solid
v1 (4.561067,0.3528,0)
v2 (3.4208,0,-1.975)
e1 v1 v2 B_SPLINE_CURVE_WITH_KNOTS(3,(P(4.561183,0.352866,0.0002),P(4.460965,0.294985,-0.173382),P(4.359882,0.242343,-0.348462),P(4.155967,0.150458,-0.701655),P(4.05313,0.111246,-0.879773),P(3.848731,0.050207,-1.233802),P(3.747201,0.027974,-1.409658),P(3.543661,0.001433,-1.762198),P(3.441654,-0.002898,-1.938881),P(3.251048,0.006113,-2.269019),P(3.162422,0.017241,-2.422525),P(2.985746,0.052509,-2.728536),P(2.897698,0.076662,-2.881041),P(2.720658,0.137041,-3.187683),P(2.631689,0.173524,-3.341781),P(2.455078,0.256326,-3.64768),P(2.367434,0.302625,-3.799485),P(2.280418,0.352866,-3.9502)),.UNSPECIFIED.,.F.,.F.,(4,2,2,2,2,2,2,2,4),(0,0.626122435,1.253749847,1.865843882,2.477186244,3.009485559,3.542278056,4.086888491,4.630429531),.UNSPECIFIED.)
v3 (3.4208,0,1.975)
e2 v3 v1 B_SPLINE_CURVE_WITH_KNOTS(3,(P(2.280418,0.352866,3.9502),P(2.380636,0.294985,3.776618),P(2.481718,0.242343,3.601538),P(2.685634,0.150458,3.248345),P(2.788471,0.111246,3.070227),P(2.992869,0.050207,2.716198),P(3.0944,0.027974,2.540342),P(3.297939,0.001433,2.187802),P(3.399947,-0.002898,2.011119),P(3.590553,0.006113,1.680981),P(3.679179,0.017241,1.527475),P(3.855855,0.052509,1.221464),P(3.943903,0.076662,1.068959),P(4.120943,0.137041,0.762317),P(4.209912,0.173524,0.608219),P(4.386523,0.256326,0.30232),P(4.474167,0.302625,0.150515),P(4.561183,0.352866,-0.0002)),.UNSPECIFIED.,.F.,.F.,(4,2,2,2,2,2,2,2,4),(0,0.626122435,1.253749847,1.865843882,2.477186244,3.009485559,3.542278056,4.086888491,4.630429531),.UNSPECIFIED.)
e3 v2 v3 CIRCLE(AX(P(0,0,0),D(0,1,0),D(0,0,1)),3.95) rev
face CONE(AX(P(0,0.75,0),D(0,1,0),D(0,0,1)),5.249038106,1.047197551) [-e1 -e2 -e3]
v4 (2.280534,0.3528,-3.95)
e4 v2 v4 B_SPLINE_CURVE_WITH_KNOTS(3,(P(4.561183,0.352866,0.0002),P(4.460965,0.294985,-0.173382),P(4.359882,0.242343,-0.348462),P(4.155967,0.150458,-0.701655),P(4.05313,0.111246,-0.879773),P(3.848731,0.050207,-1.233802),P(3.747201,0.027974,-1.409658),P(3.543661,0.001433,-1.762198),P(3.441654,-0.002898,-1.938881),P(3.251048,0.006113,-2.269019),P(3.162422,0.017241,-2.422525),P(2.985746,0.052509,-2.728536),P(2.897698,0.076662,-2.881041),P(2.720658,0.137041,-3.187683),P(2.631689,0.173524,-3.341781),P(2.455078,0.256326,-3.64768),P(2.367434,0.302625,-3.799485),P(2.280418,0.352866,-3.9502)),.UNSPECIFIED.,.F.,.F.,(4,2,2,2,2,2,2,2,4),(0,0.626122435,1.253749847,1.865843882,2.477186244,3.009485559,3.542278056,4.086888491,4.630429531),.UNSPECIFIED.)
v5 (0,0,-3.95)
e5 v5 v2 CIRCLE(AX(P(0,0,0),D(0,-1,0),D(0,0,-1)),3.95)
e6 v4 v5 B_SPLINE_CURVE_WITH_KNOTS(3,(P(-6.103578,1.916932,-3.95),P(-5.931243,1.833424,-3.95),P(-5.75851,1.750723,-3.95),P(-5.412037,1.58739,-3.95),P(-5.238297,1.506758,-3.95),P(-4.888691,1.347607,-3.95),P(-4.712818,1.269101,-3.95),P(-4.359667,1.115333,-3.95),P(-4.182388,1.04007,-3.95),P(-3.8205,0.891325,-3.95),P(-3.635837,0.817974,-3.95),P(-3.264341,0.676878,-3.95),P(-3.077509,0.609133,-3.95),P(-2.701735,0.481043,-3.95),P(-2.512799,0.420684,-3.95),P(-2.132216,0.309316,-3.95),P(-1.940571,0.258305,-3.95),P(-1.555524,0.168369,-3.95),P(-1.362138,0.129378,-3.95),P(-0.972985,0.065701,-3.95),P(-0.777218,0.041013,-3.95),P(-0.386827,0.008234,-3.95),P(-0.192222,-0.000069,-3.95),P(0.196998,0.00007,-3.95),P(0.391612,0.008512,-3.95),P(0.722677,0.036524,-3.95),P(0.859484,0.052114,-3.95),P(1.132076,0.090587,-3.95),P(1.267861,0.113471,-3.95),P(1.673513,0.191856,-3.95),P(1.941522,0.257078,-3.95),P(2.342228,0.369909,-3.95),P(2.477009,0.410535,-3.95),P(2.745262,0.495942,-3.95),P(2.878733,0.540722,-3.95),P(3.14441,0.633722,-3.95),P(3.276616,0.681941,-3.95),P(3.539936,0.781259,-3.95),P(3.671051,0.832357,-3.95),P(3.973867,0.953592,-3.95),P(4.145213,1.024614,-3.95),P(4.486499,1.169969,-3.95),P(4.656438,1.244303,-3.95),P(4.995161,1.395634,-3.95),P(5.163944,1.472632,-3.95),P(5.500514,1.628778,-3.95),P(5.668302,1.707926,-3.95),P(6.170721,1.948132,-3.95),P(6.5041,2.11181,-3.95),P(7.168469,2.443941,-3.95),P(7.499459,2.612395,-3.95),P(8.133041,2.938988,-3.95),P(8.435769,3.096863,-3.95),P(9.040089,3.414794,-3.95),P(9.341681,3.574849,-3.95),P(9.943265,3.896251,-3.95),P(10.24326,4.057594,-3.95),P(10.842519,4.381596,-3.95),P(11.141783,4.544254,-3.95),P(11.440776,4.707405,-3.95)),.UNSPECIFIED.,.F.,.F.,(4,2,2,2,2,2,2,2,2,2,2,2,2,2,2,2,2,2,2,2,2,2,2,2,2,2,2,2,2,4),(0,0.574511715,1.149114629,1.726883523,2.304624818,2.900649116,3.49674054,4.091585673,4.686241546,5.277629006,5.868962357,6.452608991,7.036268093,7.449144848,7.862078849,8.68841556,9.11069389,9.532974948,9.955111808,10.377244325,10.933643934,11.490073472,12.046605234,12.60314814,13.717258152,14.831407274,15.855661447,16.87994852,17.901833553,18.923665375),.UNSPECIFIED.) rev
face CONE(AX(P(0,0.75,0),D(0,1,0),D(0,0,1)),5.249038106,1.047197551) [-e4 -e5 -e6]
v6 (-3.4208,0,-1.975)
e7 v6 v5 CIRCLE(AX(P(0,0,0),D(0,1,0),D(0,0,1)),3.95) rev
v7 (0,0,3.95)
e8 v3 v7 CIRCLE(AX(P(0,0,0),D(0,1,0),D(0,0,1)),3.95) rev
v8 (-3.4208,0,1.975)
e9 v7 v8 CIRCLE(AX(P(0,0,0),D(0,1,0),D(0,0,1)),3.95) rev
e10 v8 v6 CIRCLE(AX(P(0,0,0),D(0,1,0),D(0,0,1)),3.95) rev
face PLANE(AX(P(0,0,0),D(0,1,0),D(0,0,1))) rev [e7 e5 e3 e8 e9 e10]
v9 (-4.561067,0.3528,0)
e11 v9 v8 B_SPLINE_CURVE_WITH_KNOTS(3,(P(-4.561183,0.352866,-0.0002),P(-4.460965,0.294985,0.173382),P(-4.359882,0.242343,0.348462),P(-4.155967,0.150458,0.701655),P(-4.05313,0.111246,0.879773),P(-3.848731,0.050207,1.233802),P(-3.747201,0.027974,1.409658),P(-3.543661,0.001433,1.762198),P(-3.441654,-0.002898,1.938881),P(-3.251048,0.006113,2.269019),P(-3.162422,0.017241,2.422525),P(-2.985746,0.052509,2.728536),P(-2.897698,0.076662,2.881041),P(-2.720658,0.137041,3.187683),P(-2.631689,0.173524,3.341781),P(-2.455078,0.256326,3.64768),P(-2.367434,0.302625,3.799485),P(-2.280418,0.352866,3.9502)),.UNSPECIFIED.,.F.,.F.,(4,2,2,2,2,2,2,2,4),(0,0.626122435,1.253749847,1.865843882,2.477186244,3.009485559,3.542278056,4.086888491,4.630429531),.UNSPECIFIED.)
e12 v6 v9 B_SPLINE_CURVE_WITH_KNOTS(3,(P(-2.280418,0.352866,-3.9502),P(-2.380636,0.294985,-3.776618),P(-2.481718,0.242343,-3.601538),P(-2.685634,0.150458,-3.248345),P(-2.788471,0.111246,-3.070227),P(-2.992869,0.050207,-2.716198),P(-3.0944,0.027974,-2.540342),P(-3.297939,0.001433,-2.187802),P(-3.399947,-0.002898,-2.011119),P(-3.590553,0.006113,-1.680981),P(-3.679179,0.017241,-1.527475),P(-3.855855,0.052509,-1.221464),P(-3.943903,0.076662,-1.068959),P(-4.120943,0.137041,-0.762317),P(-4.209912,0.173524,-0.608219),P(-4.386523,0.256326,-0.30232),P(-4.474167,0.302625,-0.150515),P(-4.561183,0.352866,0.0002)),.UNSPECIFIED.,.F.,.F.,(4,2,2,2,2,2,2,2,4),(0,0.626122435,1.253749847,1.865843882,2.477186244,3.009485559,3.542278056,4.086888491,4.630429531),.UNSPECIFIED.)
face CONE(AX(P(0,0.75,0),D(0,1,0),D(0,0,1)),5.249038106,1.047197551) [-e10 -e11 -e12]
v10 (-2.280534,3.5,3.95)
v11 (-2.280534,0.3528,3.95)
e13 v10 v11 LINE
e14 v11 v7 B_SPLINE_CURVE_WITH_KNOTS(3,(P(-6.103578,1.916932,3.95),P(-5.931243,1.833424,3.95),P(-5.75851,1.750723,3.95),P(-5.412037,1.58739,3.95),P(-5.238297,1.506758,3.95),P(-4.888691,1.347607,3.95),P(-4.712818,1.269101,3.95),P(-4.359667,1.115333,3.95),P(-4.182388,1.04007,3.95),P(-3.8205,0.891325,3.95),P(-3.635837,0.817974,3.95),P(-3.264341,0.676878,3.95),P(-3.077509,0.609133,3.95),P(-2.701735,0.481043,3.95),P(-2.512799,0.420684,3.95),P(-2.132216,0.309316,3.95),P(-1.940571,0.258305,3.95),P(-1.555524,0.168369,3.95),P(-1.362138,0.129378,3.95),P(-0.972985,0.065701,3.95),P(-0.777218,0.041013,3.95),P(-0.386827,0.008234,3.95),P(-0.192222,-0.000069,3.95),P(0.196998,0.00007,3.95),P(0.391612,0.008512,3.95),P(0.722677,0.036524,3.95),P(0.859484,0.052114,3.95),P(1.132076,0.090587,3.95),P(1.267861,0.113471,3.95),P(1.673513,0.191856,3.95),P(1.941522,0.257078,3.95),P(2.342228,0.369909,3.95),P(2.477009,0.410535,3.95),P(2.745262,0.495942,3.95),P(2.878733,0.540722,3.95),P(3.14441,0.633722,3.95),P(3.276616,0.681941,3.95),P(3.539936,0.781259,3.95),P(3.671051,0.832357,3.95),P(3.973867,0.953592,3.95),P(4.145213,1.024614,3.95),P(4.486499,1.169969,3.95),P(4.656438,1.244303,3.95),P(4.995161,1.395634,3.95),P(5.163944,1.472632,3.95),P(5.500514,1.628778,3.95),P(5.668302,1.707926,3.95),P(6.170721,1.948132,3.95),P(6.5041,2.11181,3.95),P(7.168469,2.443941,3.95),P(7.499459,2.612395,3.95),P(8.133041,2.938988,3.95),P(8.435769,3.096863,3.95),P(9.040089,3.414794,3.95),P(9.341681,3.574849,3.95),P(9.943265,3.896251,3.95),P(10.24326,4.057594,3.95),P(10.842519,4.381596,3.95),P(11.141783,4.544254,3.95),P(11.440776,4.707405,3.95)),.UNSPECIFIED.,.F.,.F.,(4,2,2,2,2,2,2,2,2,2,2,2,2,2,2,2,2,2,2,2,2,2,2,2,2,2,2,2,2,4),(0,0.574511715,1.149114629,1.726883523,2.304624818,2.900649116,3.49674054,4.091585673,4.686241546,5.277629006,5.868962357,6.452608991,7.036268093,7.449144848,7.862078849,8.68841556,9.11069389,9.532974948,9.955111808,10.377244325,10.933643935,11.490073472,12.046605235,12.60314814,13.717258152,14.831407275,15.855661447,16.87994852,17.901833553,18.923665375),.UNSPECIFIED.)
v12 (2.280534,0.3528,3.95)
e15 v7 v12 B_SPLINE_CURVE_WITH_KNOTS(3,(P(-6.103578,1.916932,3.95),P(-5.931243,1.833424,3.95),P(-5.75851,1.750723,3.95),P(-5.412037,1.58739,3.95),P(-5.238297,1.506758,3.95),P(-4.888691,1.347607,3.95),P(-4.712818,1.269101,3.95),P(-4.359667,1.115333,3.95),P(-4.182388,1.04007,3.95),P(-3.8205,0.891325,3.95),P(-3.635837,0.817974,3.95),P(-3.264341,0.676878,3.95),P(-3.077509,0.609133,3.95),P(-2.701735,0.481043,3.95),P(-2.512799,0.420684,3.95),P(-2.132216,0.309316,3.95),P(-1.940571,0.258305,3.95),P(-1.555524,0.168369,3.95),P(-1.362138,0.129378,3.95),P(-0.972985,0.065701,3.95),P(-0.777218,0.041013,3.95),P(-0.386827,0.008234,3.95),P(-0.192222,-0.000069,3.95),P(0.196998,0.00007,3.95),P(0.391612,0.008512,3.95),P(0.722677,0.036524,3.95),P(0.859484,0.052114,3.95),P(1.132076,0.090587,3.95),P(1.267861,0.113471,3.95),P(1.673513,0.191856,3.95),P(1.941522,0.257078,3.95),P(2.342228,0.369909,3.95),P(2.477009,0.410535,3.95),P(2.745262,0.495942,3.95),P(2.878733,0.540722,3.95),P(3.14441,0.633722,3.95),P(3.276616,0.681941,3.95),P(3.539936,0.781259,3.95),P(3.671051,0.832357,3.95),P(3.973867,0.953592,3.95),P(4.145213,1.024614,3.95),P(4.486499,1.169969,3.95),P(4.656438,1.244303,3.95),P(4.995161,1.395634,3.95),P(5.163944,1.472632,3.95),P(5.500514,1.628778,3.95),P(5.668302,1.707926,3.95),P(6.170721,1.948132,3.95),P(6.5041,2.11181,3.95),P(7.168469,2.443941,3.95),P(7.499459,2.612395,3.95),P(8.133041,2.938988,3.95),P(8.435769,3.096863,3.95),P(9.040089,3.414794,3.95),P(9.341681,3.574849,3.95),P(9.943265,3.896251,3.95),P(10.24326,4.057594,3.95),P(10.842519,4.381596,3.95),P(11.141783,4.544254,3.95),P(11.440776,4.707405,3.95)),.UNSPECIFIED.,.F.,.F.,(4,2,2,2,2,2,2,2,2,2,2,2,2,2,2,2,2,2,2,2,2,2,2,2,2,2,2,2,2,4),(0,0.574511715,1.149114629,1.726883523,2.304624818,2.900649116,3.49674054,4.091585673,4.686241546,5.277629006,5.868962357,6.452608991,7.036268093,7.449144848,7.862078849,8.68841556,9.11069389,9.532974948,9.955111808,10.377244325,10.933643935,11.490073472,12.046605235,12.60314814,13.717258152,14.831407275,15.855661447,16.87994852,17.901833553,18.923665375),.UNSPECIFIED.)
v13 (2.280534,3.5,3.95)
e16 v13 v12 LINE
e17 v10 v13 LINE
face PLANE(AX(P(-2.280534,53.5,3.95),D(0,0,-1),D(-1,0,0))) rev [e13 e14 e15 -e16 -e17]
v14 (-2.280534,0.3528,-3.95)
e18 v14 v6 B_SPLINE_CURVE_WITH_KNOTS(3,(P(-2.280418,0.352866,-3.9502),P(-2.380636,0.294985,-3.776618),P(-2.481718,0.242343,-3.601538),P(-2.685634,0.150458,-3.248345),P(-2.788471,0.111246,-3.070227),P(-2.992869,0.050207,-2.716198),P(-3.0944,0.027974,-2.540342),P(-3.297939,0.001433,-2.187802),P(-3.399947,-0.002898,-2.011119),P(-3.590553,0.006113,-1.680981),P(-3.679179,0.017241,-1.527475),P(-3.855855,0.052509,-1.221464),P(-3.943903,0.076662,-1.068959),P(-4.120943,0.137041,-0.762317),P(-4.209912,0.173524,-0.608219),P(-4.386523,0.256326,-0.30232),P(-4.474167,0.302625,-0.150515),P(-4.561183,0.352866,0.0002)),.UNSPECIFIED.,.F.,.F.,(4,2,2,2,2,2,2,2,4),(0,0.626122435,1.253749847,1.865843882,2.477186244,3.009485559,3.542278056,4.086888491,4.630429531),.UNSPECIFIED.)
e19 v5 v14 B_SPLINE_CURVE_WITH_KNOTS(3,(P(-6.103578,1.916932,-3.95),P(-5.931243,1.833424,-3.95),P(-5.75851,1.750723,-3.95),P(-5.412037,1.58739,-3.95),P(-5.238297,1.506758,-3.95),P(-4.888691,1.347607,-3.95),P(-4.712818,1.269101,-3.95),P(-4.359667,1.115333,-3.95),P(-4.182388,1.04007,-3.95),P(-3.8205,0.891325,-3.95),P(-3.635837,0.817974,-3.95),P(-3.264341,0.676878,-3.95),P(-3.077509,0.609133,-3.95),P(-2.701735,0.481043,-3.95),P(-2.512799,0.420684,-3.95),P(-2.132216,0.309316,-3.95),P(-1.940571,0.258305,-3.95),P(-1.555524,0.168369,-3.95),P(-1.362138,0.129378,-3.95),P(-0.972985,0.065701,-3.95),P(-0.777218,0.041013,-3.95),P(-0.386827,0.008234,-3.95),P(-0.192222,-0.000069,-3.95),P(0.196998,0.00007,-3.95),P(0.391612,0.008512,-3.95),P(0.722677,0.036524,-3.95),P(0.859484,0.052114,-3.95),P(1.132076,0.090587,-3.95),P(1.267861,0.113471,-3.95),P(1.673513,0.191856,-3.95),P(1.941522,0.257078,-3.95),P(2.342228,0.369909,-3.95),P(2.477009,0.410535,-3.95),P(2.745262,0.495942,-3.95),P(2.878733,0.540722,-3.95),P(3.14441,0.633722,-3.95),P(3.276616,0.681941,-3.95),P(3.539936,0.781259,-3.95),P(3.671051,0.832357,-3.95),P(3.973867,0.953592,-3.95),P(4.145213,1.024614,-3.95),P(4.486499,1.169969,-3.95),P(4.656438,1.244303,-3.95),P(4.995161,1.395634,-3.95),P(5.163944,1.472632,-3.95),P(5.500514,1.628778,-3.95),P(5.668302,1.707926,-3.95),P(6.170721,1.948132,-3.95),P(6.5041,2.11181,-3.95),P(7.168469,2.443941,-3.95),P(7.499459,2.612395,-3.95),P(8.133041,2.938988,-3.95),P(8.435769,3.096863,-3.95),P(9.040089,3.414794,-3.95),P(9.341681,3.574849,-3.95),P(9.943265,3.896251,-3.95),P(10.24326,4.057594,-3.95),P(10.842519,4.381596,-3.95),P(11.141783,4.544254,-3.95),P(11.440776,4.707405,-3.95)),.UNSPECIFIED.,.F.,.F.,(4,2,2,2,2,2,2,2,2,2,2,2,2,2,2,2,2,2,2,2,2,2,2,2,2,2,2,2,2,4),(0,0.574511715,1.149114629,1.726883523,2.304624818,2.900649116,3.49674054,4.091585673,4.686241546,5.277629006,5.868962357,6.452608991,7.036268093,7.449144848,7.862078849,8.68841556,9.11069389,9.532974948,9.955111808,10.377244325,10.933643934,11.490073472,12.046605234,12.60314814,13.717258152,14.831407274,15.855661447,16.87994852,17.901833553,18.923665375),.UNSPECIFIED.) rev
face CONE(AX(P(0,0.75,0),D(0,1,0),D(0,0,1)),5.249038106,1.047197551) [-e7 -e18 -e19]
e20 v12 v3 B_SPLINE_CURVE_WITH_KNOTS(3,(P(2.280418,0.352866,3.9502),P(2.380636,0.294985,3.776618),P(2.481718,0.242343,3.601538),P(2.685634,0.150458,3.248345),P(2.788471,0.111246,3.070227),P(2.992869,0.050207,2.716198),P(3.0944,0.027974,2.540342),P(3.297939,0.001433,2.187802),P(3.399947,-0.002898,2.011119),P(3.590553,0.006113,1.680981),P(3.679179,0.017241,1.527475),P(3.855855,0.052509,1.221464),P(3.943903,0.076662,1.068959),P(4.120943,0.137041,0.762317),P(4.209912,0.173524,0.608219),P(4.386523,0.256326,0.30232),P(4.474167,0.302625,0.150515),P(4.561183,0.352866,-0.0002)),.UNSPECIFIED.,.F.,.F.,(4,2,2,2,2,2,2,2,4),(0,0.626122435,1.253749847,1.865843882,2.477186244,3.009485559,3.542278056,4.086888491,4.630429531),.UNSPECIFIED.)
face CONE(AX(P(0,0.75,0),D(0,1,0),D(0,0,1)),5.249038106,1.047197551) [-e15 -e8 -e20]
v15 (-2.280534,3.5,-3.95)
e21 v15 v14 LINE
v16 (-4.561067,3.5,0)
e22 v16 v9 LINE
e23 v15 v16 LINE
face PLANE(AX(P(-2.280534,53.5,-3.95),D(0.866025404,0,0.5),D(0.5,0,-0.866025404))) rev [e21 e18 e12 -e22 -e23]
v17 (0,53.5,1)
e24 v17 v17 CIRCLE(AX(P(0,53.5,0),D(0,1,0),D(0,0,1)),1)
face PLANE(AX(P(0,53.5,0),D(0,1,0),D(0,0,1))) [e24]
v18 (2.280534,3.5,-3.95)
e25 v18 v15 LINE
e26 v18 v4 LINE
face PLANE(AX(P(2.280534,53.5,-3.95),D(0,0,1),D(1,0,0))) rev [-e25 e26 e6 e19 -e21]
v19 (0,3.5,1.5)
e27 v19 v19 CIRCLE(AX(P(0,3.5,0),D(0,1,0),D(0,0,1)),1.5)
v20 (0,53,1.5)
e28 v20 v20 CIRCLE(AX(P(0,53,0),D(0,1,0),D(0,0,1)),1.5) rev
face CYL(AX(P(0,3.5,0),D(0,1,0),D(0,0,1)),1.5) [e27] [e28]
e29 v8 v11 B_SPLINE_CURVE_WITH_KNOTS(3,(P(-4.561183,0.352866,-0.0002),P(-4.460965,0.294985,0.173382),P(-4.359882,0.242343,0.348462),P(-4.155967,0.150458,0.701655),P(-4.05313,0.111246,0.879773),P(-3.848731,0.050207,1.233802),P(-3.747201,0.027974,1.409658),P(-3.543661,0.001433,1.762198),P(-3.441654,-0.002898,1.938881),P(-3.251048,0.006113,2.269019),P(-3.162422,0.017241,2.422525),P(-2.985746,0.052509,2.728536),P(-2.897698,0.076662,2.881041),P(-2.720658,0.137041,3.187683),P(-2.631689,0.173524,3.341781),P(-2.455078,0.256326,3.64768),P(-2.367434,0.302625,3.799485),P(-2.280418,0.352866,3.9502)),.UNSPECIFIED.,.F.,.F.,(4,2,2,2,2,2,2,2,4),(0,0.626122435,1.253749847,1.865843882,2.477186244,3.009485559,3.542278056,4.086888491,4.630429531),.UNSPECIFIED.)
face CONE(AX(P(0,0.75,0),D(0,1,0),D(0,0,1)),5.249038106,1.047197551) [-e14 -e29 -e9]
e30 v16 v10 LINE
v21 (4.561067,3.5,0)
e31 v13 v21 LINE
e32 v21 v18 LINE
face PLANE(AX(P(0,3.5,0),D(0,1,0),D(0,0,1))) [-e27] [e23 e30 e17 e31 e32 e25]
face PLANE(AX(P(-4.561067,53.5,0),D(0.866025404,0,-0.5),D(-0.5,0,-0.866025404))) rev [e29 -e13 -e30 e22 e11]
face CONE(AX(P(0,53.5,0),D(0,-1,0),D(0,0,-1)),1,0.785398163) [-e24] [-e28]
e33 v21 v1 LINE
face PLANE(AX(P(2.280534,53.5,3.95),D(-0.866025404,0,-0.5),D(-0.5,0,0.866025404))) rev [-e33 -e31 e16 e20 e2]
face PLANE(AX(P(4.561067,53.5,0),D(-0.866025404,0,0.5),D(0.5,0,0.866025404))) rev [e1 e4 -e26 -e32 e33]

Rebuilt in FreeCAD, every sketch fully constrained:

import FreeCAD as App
import Part
import Sketcher
Q = App.Units.Quantity


def edges_at(feature, points):
    """Names of the edges that pass closest to the given points."""
    edges = feature.Shape.Edges
    near = lambda p: min(range(len(edges)), key=lambda i: edges[i].distToShape(Part.Vertex(*p))[0])
    return sorted({f"Edge{near(p) + 1}" for p in points})

doc = App.newDocument("Part")
params = doc.addObject("Spreadsheet::Sheet", "Params")
for row, (alias, value) in enumerate([
    ("pad1_length", "53.5 mm"),
    ("sketch2_diameter", "3 mm"),
    ("sketch2_width", "22.09 mm"),
    ("pocket1_length", "50 mm"),
    ("sketch3_width", "1.5 mm"),
    ("groove_angle", "360 deg"),
    ("chamfer_size", "0.5 mm"),
], start=1):
    params.set(f"A{row}", alias)
    params.set(f"B{row}", "=" + value)
    params.setAlias(f"B{row}", alias)

body = doc.addObject("PartDesign::Body", "Body")

sketch1 = body.newObject("Sketcher::SketchObject", "Sketch")
sketch1.AttachmentSupport = (doc.getObject("XZ_Plane"), [""])
sketch1.MapMode = "FlatFace"
sketch1.addGeometry(Part.LineSegment(App.Vector(4.6, 0, 0), App.Vector(2.3, -4, 0)), False)
sketch1.addGeometry(Part.LineSegment(App.Vector(2.3, -4, 0), App.Vector(-2.3, -4, 0)), False)
sketch1.addGeometry(Part.LineSegment(App.Vector(-2.3, -4, 0), App.Vector(-4.6, 0, 0)), False)
sketch1.addGeometry(Part.LineSegment(App.Vector(-4.6, 0, 0), App.Vector(-2.3, 4, 0)), False)
sketch1.addGeometry(Part.LineSegment(App.Vector(-2.3, 4, 0), App.Vector(2.3, 4, 0)), False)
sketch1.addGeometry(Part.LineSegment(App.Vector(2.3, 4, 0), App.Vector(4.6, 0, 0)), False)
sketch1.addConstraint(Sketcher.Constraint("Coincident", 0, 2, 1, 1))
sketch1.addConstraint(Sketcher.Constraint("Coincident", 1, 2, 2, 1))
sketch1.addConstraint(Sketcher.Constraint("Coincident", 2, 2, 3, 1))
sketch1.addConstraint(Sketcher.Constraint("Coincident", 3, 2, 4, 1))
sketch1.addConstraint(Sketcher.Constraint("Coincident", 4, 2, 5, 1))
sketch1.addConstraint(Sketcher.Constraint("Coincident", 5, 2, 0, 1))
sketch1.addConstraint(Sketcher.Constraint("Horizontal", 1))
sketch1.addConstraint(Sketcher.Constraint("Horizontal", 4))
sketch1.addConstraint(Sketcher.Constraint("Symmetric", 0, 2, 3, 2, -1, 1))
sketch1.addConstraint(Sketcher.Constraint("Symmetric", 2, 2, 5, 2, -1, 1))
sketch1.addConstraint(Sketcher.Constraint("PointOnObject", 2, 2, -1))
sketch1.addConstraint(Sketcher.Constraint("Parallel", 2, 5))
sketch1.addConstraint(Sketcher.Constraint("Vertical", 1, 2, 3, 2))
sketch1.addConstraint(Sketcher.Constraint("Angle", 0, Q("-120 deg")))
sketch1.addConstraint(Sketcher.Constraint("DistanceY", 1, 2, 3, 2, 7.9))
sketch1.addConstraint(Sketcher.Constraint("DistanceX", 2, 2, 0, 2, 6.841601))
pad1 = body.newObject("PartDesign::Pad", "Pad")
pad1.Profile = sketch1
pad1.setExpression("Length", "Params.pad1_length")
pad1.Reversed = True

sketch2 = body.newObject("Sketcher::SketchObject", "Sketch001")
sketch2.AttachmentSupport = (doc.getObject("XZ_Plane"), [""])
sketch2.MapMode = "FlatFace"
sketch2.AttachmentOffset = App.Placement(App.Vector(0, 0, -53.5), App.Rotation())
sketch2.addGeometry(Part.LineSegment(App.Vector(-11, -10.4, 0), App.Vector(-11, 10.4, 0)), False)
sketch2.addGeometry(Part.LineSegment(App.Vector(-11, 10.4, 0), App.Vector(11, 10.4, 0)), False)
sketch2.addGeometry(Part.LineSegment(App.Vector(11, 10.4, 0), App.Vector(11, -10.4, 0)), False)
sketch2.addGeometry(Part.LineSegment(App.Vector(11, -10.4, 0), App.Vector(-11, -10.4, 0)), False)
sketch2.addGeometry(Part.Circle(App.Vector(0, 0, 0), App.Vector(0, 0, 1), 1.5), False)
sketch2.addConstraint(Sketcher.Constraint("Coincident", 0, 2, 1, 1))
sketch2.addConstraint(Sketcher.Constraint("Coincident", 1, 2, 2, 1))
sketch2.addConstraint(Sketcher.Constraint("Coincident", 2, 2, 3, 1))
sketch2.addConstraint(Sketcher.Constraint("Coincident", 3, 2, 0, 1))
sketch2.addConstraint(Sketcher.Constraint("Vertical", 0))
sketch2.addConstraint(Sketcher.Constraint("Horizontal", 1))
sketch2.addConstraint(Sketcher.Constraint("Vertical", 2))
sketch2.addConstraint(Sketcher.Constraint("Horizontal", 3))
sketch2.addConstraint(Sketcher.Constraint("Coincident", 4, 3, -1, 1))
sketch2.addConstraint(Sketcher.Constraint("Symmetric", 0, 2, 2, 2, -1, 1))
sketch2.addConstraint(Sketcher.Constraint("Diameter", 4, 3.0))
sketch2.addConstraint(Sketcher.Constraint("DistanceX", 1, 1, 1, 2, 22.09))
sketch2.addConstraint(Sketcher.Constraint("DistanceY", 0, 1, 0, 2, 20.868))
sketch2.setExpression("Constraints[10]", "Params.sketch2_diameter")
sketch2.setExpression("Constraints[11]", "Params.sketch2_width")
pocket1 = body.newObject("PartDesign::Pocket", "Pocket")
pocket1.Profile = sketch2
pocket1.setExpression("Length", "Params.pocket1_length")
pocket1.Reversed = True

sketch3 = body.newObject("Sketcher::SketchObject", "Sketch002")
sketch3.AttachmentSupport = (doc.getObject("YZ_Plane"), [""])
sketch3.MapMode = "FlatFace"
sketch3.addGeometry(Part.LineSegment(App.Vector(0.8, -5.2, 0), App.Vector(0, -4, 0)), False)
sketch3.addGeometry(Part.LineSegment(App.Vector(0, -4, 0), App.Vector(-0.8, -5.2, 0)), False)
sketch3.addGeometry(Part.LineSegment(App.Vector(-0.8, -5.2, 0), App.Vector(0.8, -5.2, 0)), False)
sketch3.addConstraint(Sketcher.Constraint("Coincident", 0, 2, 1, 1))
sketch3.addConstraint(Sketcher.Constraint("Coincident", 1, 2, 2, 1))
sketch3.addConstraint(Sketcher.Constraint("Coincident", 2, 2, 0, 1))
sketch3.addConstraint(Sketcher.Constraint("Horizontal", 2))
sketch3.addConstraint(Sketcher.Constraint("PointOnObject", 0, 2, -2))
sketch3.addConstraint(Sketcher.Constraint("Equal", 0, 1))
sketch3.addConstraint(Sketcher.Constraint("Angle", 0, Q("120 deg")))
sketch3.addConstraint(Sketcher.Constraint("DistanceX", 2, 1, 2, 2, 1.5))
sketch3.addConstraint(Sketcher.Constraint("DistanceY", 0, 2, -1, 1, 3.95))
sketch3.setExpression("Constraints[7]", "Params.sketch3_width")
groove = body.newObject("PartDesign::Groove", "Groove")
groove.Profile = sketch3
groove.ReferenceAxis = (sketch3, ["H_Axis"])
groove.setExpression("Angle", "Params.groove_angle")
doc.recompute()

chamfer = body.newObject("PartDesign::Chamfer", "Chamfer")
chamfer.Base = (groove, edges_at(groove, [(0, 53.5, -1.5)]))
chamfer.setExpression("Size", "Params.chamfer_size")

doc.recompute()
